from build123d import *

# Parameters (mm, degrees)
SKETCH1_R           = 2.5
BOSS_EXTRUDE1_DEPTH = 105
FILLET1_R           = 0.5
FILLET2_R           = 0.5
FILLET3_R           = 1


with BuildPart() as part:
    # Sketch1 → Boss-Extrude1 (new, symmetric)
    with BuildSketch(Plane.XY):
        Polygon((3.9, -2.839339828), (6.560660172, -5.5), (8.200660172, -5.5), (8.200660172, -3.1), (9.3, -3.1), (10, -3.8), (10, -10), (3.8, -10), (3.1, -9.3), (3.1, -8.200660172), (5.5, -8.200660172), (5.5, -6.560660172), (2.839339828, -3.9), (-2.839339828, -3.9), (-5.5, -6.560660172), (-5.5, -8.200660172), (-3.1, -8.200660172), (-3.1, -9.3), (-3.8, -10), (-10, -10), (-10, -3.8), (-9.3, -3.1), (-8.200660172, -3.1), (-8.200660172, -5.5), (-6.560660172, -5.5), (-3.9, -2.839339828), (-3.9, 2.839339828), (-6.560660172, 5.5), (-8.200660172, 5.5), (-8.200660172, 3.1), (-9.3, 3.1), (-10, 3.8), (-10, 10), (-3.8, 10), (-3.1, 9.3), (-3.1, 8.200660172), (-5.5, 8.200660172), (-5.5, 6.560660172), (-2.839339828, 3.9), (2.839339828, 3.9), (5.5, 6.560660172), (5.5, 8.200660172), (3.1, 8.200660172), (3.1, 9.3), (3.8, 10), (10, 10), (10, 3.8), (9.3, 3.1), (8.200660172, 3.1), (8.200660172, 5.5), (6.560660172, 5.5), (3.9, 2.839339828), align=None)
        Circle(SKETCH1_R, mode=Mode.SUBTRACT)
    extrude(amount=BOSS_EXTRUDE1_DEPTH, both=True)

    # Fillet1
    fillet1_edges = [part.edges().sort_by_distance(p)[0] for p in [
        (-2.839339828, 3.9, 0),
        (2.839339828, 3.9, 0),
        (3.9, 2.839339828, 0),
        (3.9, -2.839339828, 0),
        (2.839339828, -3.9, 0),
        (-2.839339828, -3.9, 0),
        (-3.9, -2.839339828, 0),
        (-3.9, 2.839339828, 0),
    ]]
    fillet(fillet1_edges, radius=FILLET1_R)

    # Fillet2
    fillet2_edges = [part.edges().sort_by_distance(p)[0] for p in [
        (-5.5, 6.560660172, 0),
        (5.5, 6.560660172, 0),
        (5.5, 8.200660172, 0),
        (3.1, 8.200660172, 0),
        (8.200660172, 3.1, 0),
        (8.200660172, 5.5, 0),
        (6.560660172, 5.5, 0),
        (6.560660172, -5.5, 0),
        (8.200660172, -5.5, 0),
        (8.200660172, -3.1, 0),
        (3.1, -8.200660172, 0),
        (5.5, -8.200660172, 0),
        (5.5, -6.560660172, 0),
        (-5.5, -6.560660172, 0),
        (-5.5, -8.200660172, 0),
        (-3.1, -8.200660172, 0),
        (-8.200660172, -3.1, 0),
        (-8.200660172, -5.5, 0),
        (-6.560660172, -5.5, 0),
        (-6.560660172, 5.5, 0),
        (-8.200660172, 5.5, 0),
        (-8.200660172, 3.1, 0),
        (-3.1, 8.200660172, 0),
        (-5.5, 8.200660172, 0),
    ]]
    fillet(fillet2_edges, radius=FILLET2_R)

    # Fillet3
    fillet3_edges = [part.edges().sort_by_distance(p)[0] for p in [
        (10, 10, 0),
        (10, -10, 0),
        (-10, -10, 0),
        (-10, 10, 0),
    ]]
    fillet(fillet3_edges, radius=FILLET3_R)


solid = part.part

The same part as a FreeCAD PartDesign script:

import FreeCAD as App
import Part
import Sketcher


def edges_at(feature, points):
    """Names of the edges that pass closest to the given points."""
    edges = feature.Shape.Edges
    near = lambda p: min(range(len(edges)), key=lambda i: edges[i].distToShape(Part.Vertex(*p))[0])
    return sorted({f"Edge{near(p) + 1}" for p in points})


def add_polygon(sketch, points):
    """Adds a closed chain of lines whose ends are joined by coincident constraints."""
    first, n = sketch.GeometryCount, len(points)
    for a, b in zip(points, points[1:] + points[:1]):
        sketch.addGeometry(Part.LineSegment(App.Vector(*a, 0), App.Vector(*b, 0)), False)
    for i in range(n):
        sketch.addConstraint(Sketcher.Constraint("Coincident", first + i, 2, first + (i + 1) % n, 1))

doc = App.newDocument("Part")
params = doc.addObject("Spreadsheet::Sheet", "Params")
for row, (alias, value) in enumerate([
    ("sketch1_diameter", "5 mm"),
    ("sketch1_width", "6.2 mm"),
    ("sketch1_width2", "2.4 mm"),
    ("sketch1_width3", "1.64 mm"),
    ("pad1_length", "210 mm"),
    ("fillet_radius", "0.5 mm"),
    ("fillet2_radius", "0.5 mm"),
    ("fillet3_radius", "1 mm"),
], start=1):
    params.set(f"A{row}", alias)
    params.set(f"B{row}", "=" + value)
    params.setAlias(f"B{row}", alias)

body = doc.addObject("PartDesign::Body", "Body")

# Sketch on XY plane
sketch1 = body.newObject("Sketcher::SketchObject", "Sketch")
sketch1.AttachmentSupport = (doc.getObject("XY_Plane"), [""])
sketch1.MapMode = "FlatFace"
add_polygon(sketch1, [(6.6, -5.5), (3.9, -2.8), (3.9, 2.8), (6.6, 5.5), (8.2, 5.5), (8.2, 3.1), (9.3, 3.1), (10, 3.8), (10, 10), (3.8, 10), (3.1, 9.3), (3.1, 8.2), (5.5, 8.2), (5.5, 6.6), (2.8, 3.9), (-2.8, 3.9), (-5.5, 6.6), (-5.5, 8.2), (-3.1, 8.2), (-3.1, 9.3), (-3.8, 10), (-10, 10), (-10, 3.8), (-9.3, 3.1), (-8.2, 3.1), (-8.2, 5.5), (-6.6, 5.5), (-3.9, 2.8), (-3.9, -2.8), (-6.6, -5.5), (-8.2, -5.5), (-8.2, -3.1), (-9.3, -3.1), (-10, -3.8), (-10, -10), (-3.8, -10), (-3.1, -9.3), (-3.1, -8.2), (-5.5, -8.2), (-5.5, -6.6), (-2.8, -3.9), (2.8, -3.9), (5.5, -6.6), (5.5, -8.2), (3.1, -8.2), (3.1, -9.3), (3.8, -10), (10, -10), (10, -3.8), (9.3, -3.1), (8.2, -3.1), (8.2, -5.5)])  # lines 0-51
sketch1.addGeometry(Part.Circle(App.Vector(0, 0, 0), App.Vector(0, 0, 1), 2.5), False)  # 52
sketch1.addConstraint(Sketcher.Constraint("Vertical", 1))
sketch1.addConstraint(Sketcher.Constraint("Horizontal", 3))
sketch1.addConstraint(Sketcher.Constraint("Vertical", 4))
sketch1.addConstraint(Sketcher.Constraint("Horizontal", 5))
sketch1.addConstraint(Sketcher.Constraint("Vertical", 7))
sketch1.addConstraint(Sketcher.Constraint("Horizontal", 8))
sketch1.addConstraint(Sketcher.Constraint("Vertical", 10))
sketch1.addConstraint(Sketcher.Constraint("Horizontal", 11))
sketch1.addConstraint(Sketcher.Constraint("Vertical", 12))
sketch1.addConstraint(Sketcher.Constraint("Horizontal", 14))
sketch1.addConstraint(Sketcher.Constraint("Vertical", 16))
sketch1.addConstraint(Sketcher.Constraint("Horizontal", 17))
sketch1.addConstraint(Sketcher.Constraint("Vertical", 18))
sketch1.addConstraint(Sketcher.Constraint("Horizontal", 20))
sketch1.addConstraint(Sketcher.Constraint("Vertical", 21))
sketch1.addConstraint(Sketcher.Constraint("Horizontal", 23))
sketch1.addConstraint(Sketcher.Constraint("Vertical", 24))
sketch1.addConstraint(Sketcher.Constraint("Horizontal", 25))
sketch1.addConstraint(Sketcher.Constraint("Vertical", 27))
sketch1.addConstraint(Sketcher.Constraint("Horizontal", 29))
sketch1.addConstraint(Sketcher.Constraint("Vertical", 30))
sketch1.addConstraint(Sketcher.Constraint("Horizontal", 31))
sketch1.addConstraint(Sketcher.Constraint("Vertical", 33))
sketch1.addConstraint(Sketcher.Constraint("Horizontal", 34))
sketch1.addConstraint(Sketcher.Constraint("Vertical", 36))
sketch1.addConstraint(Sketcher.Constraint("Horizontal", 37))
sketch1.addConstraint(Sketcher.Constraint("Vertical", 38))
sketch1.addConstraint(Sketcher.Constraint("Horizontal", 40))
sketch1.addConstraint(Sketcher.Constraint("Vertical", 42))
sketch1.addConstraint(Sketcher.Constraint("Horizontal", 43))
sketch1.addConstraint(Sketcher.Constraint("Vertical", 44))
sketch1.addConstraint(Sketcher.Constraint("Horizontal", 46))
sketch1.addConstraint(Sketcher.Constraint("Vertical", 47))
sketch1.addConstraint(Sketcher.Constraint("Horizontal", 49))
sketch1.addConstraint(Sketcher.Constraint("Vertical", 50))
sketch1.addConstraint(Sketcher.Constraint("Horizontal", 51))
sketch1.addConstraint(Sketcher.Constraint("Coincident", 52, 3, -1, 1))
sketch1.addConstraint(Sketcher.Constraint("Symmetric", 0, 2, 26, 2, -1, 1))
sketch1.addConstraint(Sketcher.Constraint("Symmetric", 2, 2, 28, 2, -1, 1))
sketch1.addConstraint(Sketcher.Constraint("Symmetric", 4, 2, 30, 2, -1, 1))
sketch1.addConstraint(Sketcher.Constraint("Symmetric", 6, 2, 32, 2, -1, 1))
sketch1.addConstraint(Sketcher.Constraint("Symmetric", 8, 2, 34, 2, -1, 1))
sketch1.addConstraint(Sketcher.Constraint("Symmetric", 9, 2, 35, 2, -1, 1))
sketch1.addConstraint(Sketcher.Constraint("Symmetric", 11, 2, 37, 2, -1, 1))
sketch1.addConstraint(Sketcher.Constraint("Symmetric", 13, 2, 39, 2, -1, 1))
sketch1.addConstraint(Sketcher.Constraint("Symmetric", 15, 2, 41, 2, -1, 1))
sketch1.addConstraint(Sketcher.Constraint("Symmetric", 17, 2, 43, 2, -1, 1))
sketch1.addConstraint(Sketcher.Constraint("Symmetric", 19, 2, 45, 2, -1, 1))
sketch1.addConstraint(Sketcher.Constraint("Symmetric", 21, 2, 47, 2, -1, 1))
sketch1.addConstraint(Sketcher.Constraint("Symmetric", 22, 2, 48, 2, -1, 1))
sketch1.addConstraint(Sketcher.Constraint("Symmetric", 24, 2, 50, 2, -1, 1))
sketch1.addConstraint(Sketcher.Constraint("Symmetric", 12, 2, 15, 2, -2))
sketch1.addConstraint(Sketcher.Constraint("Symmetric", 10, 2, 17, 2, -2))
sketch1.addConstraint(Sketcher.Constraint("Symmetric", 8, 2, 19, 2, -2))
sketch1.addConstraint(Sketcher.Constraint("Symmetric", 6, 2, 21, 2, -2))
sketch1.addConstraint(Sketcher.Constraint("Symmetric", 5, 2, 22, 2, -2))
sketch1.addConstraint(Sketcher.Constraint("Symmetric", 3, 2, 24, 2, -2))
sketch1.addConstraint(Sketcher.Constraint("Perpendicular", 0, 2))
sketch1.addConstraint(Sketcher.Constraint("Parallel", 2, 6))
sketch1.addConstraint(Sketcher.Constraint("Parallel", 6, 9))
sketch1.addConstraint(Sketcher.Constraint("Parallel", 9, 13))
sketch1.addConstraint(Sketcher.Constraint("Perpendicular", 13, 15))
sketch1.addConstraint(Sketcher.Constraint("Parallel", 15, 19))
sketch1.addConstraint(Sketcher.Constraint("Parallel", 19, 22))
sketch1.addConstraint(Sketcher.Constraint("Parallel", 22, 26))
sketch1.addConstraint(Sketcher.Constraint("Perpendicular", 26, 28))
sketch1.addConstraint(Sketcher.Constraint("Parallel", 28, 32))
sketch1.addConstraint(Sketcher.Constraint("Parallel", 35, 39))
sketch1.addConstraint(Sketcher.Constraint("Perpendicular", 39, 41))
sketch1.addConstraint(Sketcher.Constraint("Parallel", 41, 45))
sketch1.addConstraint(Sketcher.Constraint("Horizontal", 1, 2, 26, 2))
sketch1.addConstraint(Sketcher.Constraint("Equal", 40, 1))
sketch1.addConstraint(Sketcher.Constraint("Equal", 43, 4))
sketch1.addConstraint(Sketcher.Constraint("Equal", 46, 7))
sketch1.addConstraint(Sketcher.Constraint("Equal", 49, 10))
sketch1.addConstraint(Sketcher.Constraint("Equal", 51, 12))
sketch1.addConstraint(Sketcher.Constraint("Equal", 6, 9))
sketch1.addConstraint(Sketcher.Constraint("Equal", 2, 13))
sketch1.addConstraint(Sketcher.Constraint("Diameter", 52, 5.0))
sketch1.addConstraint(Sketcher.Constraint("DistanceX", 8, 2, 8, 1, 6.2))
sketch1.addConstraint(Sketcher.Constraint("DistanceX", 11, 1, 11, 2, 2.4))
sketch1.addConstraint(Sketcher.Constraint("DistanceX", -1, 1, 6, 2, 10.0))
sketch1.addConstraint(Sketcher.Constraint("DistanceX", 3, 1, 3, 2, 1.64))
sketch1.addConstraint(Sketcher.Constraint("DistanceX", -1, 1, 0, 2, 3.9))
sketch1.addConstraint(Sketcher.Constraint("DistanceY", -1, 1, 2, 2, 5.5))
sketch1.addConstraint(Sketcher.Constraint("DistanceX", 5, 1, 5, 2, 1.09934))
sketch1.setExpression("Constraints[130]", "Params.sketch1_diameter")
sketch1.setExpression("Constraints[131]", "Params.sketch1_width")
sketch1.setExpression("Constraints[132]", "Params.sketch1_width2")
sketch1.setExpression("Constraints[134]", "Params.sketch1_width3")
pad1 = body.newObject("PartDesign::Pad", "Pad")
pad1.Profile = sketch1
pad1.setExpression("Length", "Params.pad1_length")
pad1.Midplane = True
doc.recompute()

fillet = body.newObject("PartDesign::Fillet", "Fillet")
fillet.Base = (pad1, edges_at(pad1, [
    (-2.839, 3.9, 0),
    (2.839, 3.9, 0),
    (3.9, 2.839, 0),
    (3.9, -2.839, 0),
    (2.839, -3.9, 0),
    (-2.839, -3.9, 0),
    (-3.9, -2.839, 0),
    (-3.9, 2.839, 0),
]))
fillet.setExpression("Radius", "Params.fillet_radius")
doc.recompute()

fillet2 = body.newObject("PartDesign::Fillet", "Fillet001")
fillet2.Base = (fillet, edges_at(fillet, [
    (-5.5, 6.561, 0),
    (5.5, 6.561, 0),
    (5.5, 8.201, 0),
    (3.1, 8.201, 0),
    (8.201, 3.1, 0),
    (8.201, 5.5, 0),
    (6.561, 5.5, 0),
    (6.561, -5.5, 0),
    (8.201, -5.5, 0),
    (8.201, -3.1, 0),
    (3.1, -8.201, 0),
    (5.5, -8.201, 0),
    (5.5, -6.561, 0),
    (-5.5, -6.561, 0),
    (-5.5, -8.201, 0),
    (-3.1, -8.201, 0),
    (-8.201, -3.1, 0),
    (-8.201, -5.5, 0),
    (-6.561, -5.5, 0),
    (-6.561, 5.5, 0),
    (-8.201, 5.5, 0),
    (-8.201, 3.1, 0),
    (-3.1, 8.201, 0),
    (-5.5, 8.201, 0),
]))
fillet2.setExpression("Radius", "Params.fillet2_radius")
doc.recompute()

fillet3 = body.newObject("PartDesign::Fillet", "Fillet002")
fillet3.Base = (fillet2, edges_at(fillet2, [
    (10, 10, 0),
    (10, -10, 0),
    (-10, -10, 0),
    (-10, 10, 0),
]))
fillet3.setExpression("Radius", "Params.fillet3_radius")

doc.recompute()
